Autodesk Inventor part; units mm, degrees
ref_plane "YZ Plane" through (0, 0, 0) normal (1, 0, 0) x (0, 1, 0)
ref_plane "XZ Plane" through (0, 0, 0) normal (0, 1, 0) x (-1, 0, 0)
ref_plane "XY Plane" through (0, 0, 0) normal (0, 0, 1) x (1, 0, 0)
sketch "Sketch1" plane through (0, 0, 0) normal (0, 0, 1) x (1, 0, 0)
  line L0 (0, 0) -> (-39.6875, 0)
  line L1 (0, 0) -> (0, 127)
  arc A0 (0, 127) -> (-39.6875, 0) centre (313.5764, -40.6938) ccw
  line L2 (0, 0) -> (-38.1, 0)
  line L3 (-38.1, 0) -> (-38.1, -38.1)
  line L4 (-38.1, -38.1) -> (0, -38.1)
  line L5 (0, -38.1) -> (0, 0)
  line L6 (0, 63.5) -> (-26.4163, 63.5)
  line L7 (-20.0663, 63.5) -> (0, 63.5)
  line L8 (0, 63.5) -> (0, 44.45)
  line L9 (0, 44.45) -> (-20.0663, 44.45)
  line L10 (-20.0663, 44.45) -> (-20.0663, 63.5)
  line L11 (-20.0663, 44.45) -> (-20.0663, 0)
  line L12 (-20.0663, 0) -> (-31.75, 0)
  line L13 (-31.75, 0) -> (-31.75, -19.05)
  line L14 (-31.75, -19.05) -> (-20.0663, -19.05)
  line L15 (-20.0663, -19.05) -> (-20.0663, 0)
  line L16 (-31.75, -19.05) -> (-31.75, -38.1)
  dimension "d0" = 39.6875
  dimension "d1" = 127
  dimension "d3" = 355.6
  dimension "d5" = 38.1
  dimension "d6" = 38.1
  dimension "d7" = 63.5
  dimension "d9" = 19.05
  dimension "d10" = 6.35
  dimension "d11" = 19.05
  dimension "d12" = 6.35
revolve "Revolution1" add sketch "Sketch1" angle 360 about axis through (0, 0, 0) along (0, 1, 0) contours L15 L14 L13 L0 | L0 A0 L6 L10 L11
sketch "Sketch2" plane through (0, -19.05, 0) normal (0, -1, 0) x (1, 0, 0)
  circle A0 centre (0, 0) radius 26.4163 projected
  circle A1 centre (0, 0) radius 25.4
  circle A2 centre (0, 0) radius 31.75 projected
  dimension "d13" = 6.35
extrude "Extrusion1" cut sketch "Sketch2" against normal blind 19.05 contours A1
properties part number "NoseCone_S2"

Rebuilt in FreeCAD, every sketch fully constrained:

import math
import FreeCAD as App
import Part
import Sketcher
from FreeCAD import Vector
Q = App.Units.Quantity

doc = App.newDocument("Part")
params = doc.addObject("Spreadsheet::Sheet", "Params")
for row, (alias, value) in enumerate([
    ("sketch1_radius", "14 in"),
    ("sketch1_width", "0.25 in"),
    ("sketch1_height", "0.75 in"),
    ("sketch1_width2", "0.46 in"),
    ("sketch1_width3", "0.3125 in"),
    ("revolution_angle", "360 deg"),
    ("sketch2_diameter", "2 in"),
    ("pocket1_length", "0.75 in"),
], start=1):
    params.set(f"A{row}", alias)
    params.set(f"B{row}", "=" + value)
    params.setAlias(f"B{row}", alias)

body = doc.addObject("PartDesign::Body", "Body")

# Sketch on XY plane
sketch1 = body.newObject("Sketcher::SketchObject", "Sketch")
sketch1.AttachmentSupport = (doc.getObject("XY_Plane"), [""])
sketch1.MapMode = "FlatFace"
sketch1.addGeometry(Part.LineSegment(Vector(-20, -19, 0), Vector(-20, 64, 0)), False)
sketch1.addGeometry(Part.LineSegment(Vector(-20, 64, 0), Vector(-26, 64, 0)), False)
sketch1.addGeometry(Part.ArcOfCircle(Part.Circle(Vector(314, -41, 0), Vector(0, 0, 1), 356), math.radians(162.96), math.radians(173.43)), False)
sketch1.addGeometry(Part.LineSegment(Vector(-40, 0, 0), Vector(-32, 0, 0)), False)
sketch1.addGeometry(Part.LineSegment(Vector(-32, 0, 0), Vector(-32, -19, 0)), False)
sketch1.addGeometry(Part.LineSegment(Vector(-32, -19, 0), Vector(-20, -19, 0)), False)
sketch1.addConstraint(Sketcher.Constraint("Coincident", 0, 2, 1, 1))
sketch1.addConstraint(Sketcher.Constraint("Coincident", 1, 2, 2, 1))
sketch1.addConstraint(Sketcher.Constraint("Coincident", 2, 2, 3, 1))
sketch1.addConstraint(Sketcher.Constraint("Coincident", 3, 2, 4, 1))
sketch1.addConstraint(Sketcher.Constraint("Coincident", 4, 2, 5, 1))
sketch1.addConstraint(Sketcher.Constraint("Coincident", 5, 2, 0, 1))
sketch1.addConstraint(Sketcher.Constraint("Vertical", 0))
sketch1.addConstraint(Sketcher.Constraint("Horizontal", 1))
sketch1.addConstraint(Sketcher.Constraint("Horizontal", 3))
sketch1.addConstraint(Sketcher.Constraint("Vertical", 4))
sketch1.addConstraint(Sketcher.Constraint("Horizontal", 5))
sketch1.addConstraint(Sketcher.Constraint("PointOnObject", 3, 2, -1))
sketch1.addConstraint(Sketcher.Constraint("Radius", 2, Q("14 in")))
sketch1.addConstraint(Sketcher.Constraint("DistanceX", 1, 2, 1, 1, Q("0.25 in")))
sketch1.addConstraint(Sketcher.Constraint("DistanceY", 4, 2, 4, 1, Q("0.75 in")))
sketch1.addConstraint(Sketcher.Constraint("DistanceY", -1, 1, 0, 2, Q("2.5 in")))
sketch1.addConstraint(Sketcher.Constraint("DistanceX", 2, 2, -1, 1, Q("1.5625 in")))
sketch1.addConstraint(Sketcher.Constraint("DistanceX", 5, 1, 5, 2, Q("0.46 in")))
sketch1.addConstraint(Sketcher.Constraint("DistanceX", 3, 1, 3, 2, Q("0.3125 in")))
sketch1.setExpression("Constraints[12]", "Params.sketch1_radius")
sketch1.setExpression("Constraints[13]", "Params.sketch1_width")
sketch1.setExpression("Constraints[14]", "Params.sketch1_height")
sketch1.setExpression("Constraints[17]", "Params.sketch1_width2")
sketch1.setExpression("Constraints[18]", "Params.sketch1_width3")
revolution = body.newObject("PartDesign::Revolution", "Revolution")
revolution.Profile = sketch1
revolution.ReferenceAxis = (sketch1, ["V_Axis"])
revolution.setExpression("Angle", "Params.revolution_angle")

# Sketch on XZ plane
sketch2 = body.newObject("Sketcher::SketchObject", "Sketch001")
sketch2.AttachmentSupport = (doc.getObject("XZ_Plane"), [""])
sketch2.MapMode = "FlatFace"
sketch2.AttachmentOffset = App.Placement(Vector(0, 0, 0.75 * 25.4), App.Rotation())
sketch2.addGeometry(Part.Circle(Vector(0, 0, 0), Vector(0, 0, 1), 25), False)
sketch2.addConstraint(Sketcher.Constraint("Coincident", 0, 3, -1, 1))
sketch2.addConstraint(Sketcher.Constraint("Diameter", 0, Q("2 in")))
sketch2.setExpression("Constraints[1]", "Params.sketch2_diameter")
pocket1 = body.newObject("PartDesign::Pocket", "Pocket")
pocket1.Profile = sketch2
pocket1.setExpression("Length", "Params.pocket1_length")

doc.recompute()
